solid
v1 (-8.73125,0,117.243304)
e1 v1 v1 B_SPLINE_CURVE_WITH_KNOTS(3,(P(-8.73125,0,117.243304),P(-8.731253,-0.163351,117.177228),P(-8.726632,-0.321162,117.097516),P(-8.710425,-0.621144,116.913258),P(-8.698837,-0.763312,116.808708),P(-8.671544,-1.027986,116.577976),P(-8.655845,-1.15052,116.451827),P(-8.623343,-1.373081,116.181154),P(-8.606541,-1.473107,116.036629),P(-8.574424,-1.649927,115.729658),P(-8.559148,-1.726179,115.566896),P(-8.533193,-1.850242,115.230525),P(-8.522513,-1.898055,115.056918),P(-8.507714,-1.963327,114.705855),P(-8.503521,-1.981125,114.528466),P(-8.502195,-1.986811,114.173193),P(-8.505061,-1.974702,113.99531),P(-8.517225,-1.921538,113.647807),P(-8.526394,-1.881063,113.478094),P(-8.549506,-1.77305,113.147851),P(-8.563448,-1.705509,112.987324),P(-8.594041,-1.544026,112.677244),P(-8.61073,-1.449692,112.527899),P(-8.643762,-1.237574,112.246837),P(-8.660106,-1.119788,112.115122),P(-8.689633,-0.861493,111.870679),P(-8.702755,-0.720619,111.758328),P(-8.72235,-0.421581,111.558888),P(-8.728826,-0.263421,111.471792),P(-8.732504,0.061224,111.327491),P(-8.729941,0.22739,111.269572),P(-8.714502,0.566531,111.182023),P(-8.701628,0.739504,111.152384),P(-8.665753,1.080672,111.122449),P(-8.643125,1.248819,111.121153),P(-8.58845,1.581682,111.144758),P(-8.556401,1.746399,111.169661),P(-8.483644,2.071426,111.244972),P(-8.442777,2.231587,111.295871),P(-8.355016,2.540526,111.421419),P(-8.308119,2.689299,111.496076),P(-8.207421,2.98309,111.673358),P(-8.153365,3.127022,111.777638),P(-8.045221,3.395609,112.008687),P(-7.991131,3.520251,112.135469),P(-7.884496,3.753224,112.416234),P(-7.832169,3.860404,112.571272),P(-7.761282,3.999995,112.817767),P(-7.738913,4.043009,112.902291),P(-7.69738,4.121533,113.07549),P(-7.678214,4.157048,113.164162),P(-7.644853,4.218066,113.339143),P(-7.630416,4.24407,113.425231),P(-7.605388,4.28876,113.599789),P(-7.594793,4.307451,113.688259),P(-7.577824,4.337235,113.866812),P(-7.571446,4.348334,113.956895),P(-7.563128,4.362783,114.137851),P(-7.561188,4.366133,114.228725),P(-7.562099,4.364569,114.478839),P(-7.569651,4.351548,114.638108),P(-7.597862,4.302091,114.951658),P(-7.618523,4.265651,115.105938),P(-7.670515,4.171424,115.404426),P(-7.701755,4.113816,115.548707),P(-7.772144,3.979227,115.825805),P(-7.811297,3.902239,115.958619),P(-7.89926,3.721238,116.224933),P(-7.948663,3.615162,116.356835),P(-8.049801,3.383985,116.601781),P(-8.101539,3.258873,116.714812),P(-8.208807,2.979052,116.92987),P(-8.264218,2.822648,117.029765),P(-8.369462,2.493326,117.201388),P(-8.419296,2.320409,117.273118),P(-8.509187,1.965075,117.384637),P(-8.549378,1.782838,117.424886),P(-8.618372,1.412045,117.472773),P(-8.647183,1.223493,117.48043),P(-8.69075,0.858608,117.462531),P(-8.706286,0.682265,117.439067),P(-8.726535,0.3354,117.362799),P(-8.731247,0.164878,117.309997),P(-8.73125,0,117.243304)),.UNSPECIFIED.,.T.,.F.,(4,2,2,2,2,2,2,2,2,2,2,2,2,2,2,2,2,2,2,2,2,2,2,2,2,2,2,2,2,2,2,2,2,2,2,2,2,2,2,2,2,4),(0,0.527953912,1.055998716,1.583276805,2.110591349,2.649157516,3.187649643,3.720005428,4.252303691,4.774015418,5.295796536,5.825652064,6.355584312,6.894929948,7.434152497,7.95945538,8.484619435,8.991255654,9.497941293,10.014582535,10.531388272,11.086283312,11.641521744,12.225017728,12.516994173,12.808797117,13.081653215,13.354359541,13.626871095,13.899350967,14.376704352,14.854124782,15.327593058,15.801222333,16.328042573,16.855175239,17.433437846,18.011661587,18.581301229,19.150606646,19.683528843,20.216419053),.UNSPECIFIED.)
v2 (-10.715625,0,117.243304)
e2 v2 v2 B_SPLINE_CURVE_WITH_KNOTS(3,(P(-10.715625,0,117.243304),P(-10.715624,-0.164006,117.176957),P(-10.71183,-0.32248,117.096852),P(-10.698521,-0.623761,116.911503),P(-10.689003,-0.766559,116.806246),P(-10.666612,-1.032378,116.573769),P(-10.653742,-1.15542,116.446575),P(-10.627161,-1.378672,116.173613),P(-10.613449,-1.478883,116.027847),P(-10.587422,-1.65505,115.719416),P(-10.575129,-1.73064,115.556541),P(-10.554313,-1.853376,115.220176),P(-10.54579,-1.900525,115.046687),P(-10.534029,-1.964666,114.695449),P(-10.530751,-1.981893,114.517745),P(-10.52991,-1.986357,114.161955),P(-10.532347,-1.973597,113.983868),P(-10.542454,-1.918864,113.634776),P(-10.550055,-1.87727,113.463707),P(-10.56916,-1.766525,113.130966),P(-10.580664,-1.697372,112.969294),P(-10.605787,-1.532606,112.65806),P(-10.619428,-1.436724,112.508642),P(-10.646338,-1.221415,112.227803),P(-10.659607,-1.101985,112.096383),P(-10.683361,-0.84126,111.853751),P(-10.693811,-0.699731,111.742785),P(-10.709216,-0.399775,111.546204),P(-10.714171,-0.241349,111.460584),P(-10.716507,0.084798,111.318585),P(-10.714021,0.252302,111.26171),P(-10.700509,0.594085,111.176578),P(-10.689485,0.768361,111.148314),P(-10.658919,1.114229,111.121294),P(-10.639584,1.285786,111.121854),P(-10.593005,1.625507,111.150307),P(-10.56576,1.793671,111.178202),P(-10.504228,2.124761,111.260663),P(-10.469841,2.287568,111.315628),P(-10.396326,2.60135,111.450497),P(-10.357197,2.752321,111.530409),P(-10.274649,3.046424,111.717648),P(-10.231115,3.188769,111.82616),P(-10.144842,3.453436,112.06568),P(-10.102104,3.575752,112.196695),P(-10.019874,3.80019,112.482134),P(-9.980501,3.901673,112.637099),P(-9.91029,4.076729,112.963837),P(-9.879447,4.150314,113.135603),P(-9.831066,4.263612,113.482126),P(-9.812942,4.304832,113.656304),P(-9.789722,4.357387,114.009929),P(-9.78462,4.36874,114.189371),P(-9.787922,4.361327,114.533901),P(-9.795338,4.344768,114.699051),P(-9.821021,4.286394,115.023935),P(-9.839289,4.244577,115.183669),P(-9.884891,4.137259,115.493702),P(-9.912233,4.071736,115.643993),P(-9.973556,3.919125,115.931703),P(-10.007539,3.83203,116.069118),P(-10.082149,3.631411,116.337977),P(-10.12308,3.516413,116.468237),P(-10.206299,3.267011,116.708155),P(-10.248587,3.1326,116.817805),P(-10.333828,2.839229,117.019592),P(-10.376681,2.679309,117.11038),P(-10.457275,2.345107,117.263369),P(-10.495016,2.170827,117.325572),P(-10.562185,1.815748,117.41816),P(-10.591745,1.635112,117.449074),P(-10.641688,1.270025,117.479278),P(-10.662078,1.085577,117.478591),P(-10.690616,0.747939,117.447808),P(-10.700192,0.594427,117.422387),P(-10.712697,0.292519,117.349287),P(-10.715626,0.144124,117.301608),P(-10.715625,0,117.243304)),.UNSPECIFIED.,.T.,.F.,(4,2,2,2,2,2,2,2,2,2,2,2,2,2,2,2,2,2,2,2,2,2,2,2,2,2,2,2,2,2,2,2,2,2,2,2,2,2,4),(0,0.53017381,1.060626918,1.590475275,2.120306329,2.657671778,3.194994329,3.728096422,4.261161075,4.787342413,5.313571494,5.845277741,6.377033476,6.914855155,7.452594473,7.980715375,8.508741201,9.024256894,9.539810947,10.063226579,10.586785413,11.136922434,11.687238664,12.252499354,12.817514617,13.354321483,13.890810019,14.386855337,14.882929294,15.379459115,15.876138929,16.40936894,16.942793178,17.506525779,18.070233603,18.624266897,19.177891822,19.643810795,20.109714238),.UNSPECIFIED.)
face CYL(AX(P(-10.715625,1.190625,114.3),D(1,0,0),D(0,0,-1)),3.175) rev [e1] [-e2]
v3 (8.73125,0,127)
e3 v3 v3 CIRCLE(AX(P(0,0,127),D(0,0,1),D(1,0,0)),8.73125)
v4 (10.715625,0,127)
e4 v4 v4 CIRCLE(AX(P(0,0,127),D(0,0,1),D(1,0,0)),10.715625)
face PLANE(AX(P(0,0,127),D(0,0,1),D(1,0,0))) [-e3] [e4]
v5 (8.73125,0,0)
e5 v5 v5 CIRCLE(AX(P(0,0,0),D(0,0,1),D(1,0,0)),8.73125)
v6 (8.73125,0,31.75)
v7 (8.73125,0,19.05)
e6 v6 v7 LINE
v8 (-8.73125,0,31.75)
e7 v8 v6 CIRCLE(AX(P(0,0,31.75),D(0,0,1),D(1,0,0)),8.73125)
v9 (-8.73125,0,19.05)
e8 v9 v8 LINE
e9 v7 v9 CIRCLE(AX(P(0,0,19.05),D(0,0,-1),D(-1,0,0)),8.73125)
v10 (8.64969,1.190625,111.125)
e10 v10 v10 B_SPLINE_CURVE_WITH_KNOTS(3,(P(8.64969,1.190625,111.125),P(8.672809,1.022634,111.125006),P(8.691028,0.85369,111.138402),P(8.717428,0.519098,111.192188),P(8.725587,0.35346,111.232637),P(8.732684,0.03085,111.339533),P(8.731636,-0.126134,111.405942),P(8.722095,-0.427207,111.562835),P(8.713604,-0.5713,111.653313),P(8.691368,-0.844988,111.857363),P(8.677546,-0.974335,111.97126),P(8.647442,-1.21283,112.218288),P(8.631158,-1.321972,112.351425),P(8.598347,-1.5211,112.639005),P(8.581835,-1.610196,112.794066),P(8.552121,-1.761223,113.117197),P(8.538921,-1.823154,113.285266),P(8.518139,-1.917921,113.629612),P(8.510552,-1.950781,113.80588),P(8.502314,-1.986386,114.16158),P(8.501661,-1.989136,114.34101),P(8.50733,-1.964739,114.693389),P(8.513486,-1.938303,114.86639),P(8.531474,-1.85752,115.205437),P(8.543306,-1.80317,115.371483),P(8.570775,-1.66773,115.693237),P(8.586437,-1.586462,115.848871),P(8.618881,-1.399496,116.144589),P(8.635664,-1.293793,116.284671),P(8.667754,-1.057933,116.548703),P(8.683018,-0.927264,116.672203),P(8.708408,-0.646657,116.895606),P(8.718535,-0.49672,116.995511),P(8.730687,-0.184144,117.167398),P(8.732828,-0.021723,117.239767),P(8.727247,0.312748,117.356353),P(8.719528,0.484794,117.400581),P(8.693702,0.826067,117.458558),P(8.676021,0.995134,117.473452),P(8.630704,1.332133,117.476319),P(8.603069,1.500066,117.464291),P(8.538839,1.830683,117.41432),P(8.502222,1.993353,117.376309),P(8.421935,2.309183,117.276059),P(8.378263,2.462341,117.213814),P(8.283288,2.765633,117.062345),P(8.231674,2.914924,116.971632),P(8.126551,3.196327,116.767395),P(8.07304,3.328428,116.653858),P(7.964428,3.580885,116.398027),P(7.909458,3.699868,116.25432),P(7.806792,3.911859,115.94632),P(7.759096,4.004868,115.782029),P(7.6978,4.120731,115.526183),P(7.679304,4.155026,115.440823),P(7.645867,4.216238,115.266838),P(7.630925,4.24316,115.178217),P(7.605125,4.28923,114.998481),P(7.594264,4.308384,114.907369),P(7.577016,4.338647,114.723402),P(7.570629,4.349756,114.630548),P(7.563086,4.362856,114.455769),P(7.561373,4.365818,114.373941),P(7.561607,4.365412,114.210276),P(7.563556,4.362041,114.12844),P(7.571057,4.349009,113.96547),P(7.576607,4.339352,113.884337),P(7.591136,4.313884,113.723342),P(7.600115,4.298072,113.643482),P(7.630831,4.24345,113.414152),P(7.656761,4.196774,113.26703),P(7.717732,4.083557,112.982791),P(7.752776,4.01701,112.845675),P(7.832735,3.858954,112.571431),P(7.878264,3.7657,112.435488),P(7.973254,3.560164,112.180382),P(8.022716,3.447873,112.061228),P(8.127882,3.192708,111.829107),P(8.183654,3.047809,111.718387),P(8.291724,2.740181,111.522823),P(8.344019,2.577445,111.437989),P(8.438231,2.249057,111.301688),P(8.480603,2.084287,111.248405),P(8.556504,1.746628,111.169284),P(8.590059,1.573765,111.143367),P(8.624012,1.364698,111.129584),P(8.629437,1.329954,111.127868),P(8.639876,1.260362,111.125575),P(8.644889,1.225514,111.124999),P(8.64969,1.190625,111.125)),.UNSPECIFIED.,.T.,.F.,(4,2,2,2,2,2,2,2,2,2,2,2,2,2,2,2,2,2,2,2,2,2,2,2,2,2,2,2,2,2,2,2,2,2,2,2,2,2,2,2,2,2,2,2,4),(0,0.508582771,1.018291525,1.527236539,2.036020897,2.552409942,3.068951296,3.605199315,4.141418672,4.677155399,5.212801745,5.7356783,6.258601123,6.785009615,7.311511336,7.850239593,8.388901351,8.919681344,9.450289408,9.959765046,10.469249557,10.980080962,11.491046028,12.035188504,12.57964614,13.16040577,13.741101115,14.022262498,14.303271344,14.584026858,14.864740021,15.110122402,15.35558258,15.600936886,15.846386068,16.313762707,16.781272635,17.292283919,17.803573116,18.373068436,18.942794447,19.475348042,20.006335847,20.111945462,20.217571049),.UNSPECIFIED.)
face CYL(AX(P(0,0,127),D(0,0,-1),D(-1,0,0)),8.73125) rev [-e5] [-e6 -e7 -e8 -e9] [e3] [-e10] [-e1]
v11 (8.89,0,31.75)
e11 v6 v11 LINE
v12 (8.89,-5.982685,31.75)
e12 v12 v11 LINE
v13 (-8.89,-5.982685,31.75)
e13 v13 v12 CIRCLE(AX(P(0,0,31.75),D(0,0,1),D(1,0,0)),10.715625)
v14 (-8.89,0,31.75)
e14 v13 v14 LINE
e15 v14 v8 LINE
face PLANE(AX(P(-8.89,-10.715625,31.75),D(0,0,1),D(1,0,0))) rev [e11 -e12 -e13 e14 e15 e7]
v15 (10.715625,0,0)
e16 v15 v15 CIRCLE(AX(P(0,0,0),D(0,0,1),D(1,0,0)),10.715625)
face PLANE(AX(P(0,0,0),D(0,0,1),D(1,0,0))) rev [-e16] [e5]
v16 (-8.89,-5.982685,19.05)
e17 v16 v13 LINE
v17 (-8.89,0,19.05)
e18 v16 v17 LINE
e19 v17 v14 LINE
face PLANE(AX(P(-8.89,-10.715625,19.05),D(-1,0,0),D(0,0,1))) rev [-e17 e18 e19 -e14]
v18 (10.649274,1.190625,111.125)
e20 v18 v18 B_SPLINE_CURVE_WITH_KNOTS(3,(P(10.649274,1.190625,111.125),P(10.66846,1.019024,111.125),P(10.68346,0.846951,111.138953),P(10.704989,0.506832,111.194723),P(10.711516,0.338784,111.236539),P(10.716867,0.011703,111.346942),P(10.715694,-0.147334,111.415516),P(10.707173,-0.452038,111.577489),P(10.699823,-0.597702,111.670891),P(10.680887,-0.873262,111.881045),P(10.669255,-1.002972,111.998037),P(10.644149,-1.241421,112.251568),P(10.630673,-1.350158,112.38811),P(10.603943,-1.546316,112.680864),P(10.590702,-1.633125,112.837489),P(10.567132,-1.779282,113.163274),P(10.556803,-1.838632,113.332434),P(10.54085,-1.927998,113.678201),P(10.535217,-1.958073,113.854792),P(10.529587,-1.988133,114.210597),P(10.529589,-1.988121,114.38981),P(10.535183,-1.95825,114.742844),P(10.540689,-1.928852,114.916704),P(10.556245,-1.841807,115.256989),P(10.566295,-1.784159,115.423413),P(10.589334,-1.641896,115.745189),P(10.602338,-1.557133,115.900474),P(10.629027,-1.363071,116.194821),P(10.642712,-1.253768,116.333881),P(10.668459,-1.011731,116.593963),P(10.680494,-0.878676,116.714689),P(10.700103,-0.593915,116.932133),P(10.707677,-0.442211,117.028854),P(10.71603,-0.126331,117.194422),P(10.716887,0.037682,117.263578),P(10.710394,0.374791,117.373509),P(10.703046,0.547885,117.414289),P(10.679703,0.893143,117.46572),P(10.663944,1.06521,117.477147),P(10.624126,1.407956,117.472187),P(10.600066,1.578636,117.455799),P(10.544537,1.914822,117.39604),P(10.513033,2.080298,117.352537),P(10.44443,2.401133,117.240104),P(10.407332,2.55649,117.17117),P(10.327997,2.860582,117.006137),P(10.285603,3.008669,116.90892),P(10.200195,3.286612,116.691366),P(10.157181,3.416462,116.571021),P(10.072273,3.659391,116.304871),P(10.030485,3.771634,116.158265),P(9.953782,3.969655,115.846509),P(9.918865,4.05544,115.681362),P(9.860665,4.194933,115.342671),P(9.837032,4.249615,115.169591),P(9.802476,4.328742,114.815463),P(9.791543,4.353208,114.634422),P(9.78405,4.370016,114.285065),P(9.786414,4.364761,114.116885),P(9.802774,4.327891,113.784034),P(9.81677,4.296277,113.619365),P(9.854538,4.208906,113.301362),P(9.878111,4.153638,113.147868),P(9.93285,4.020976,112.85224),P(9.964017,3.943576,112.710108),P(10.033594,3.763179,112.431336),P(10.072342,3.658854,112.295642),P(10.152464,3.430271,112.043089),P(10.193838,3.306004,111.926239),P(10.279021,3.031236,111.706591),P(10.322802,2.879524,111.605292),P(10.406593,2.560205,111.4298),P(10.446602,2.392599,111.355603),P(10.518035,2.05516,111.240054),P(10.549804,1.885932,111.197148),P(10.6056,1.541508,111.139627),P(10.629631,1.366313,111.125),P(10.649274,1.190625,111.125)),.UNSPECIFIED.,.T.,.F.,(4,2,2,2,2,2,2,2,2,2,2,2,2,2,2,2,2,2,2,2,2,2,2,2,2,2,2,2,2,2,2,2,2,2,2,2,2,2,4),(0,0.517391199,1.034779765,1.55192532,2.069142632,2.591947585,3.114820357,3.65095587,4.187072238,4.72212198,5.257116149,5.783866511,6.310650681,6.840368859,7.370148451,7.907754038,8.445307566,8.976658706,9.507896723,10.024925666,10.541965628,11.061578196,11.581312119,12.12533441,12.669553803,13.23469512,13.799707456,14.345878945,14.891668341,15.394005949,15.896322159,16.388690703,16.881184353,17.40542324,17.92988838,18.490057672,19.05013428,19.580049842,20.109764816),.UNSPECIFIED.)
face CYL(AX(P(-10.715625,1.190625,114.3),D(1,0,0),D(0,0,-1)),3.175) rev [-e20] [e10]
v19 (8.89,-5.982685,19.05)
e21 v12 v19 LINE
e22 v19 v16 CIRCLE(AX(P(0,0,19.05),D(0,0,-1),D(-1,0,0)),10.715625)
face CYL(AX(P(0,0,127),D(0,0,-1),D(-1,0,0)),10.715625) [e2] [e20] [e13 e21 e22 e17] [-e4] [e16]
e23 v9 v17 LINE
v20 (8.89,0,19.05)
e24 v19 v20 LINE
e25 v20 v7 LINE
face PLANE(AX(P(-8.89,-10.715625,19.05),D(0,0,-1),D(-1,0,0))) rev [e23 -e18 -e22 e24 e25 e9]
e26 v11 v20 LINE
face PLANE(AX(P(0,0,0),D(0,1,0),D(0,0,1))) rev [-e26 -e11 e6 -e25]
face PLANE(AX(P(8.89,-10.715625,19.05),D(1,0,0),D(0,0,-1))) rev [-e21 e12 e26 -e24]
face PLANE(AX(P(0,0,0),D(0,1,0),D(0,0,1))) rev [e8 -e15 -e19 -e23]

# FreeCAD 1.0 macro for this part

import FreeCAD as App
import Part
import Sketcher

V = App.Vector
Q = App.Units.Quantity


def add_polygon(sketch, points):
    """Adds a closed chain of lines whose ends are joined by coincident constraints."""
    first, n = sketch.GeometryCount, len(points)
    for a, b in zip(points, points[1:] + points[:1]):
        sketch.addGeometry(Part.LineSegment(App.Vector(*a, 0), App.Vector(*b, 0)), False)
    for i in range(n):
        sketch.addConstraint(Sketcher.Constraint("Coincident", first + i, 2, first + (i + 1) % n, 1))

doc = App.newDocument("Part")
body = doc.addObject("PartDesign::Body", "Body")

# Sketch on XY plane
sketch1 = body.newObject("Sketcher::SketchObject", "Sketch")
sketch1.AttachmentSupport = (doc.getObject("XY_Plane"), [""])
sketch1.MapMode = "FlatFace"
sketch1.addGeometry([
    Part.Circle(V(0, 0, 0), V(0, 0, 1), 11),
    Part.Circle(V(0, 0, 0), V(0, 0, 1), 9),
], False)
sketch1.addConstraint([
    Sketcher.Constraint("Coincident", 0, 3, -1, 1),
    Sketcher.Constraint("Coincident", 1, 3, -1, 1),
    Sketcher.Constraint("Diameter", 0, Q("0.84375 in")),
    Sketcher.Constraint("Diameter", 1, Q("0.6875 in")),
])
pad1 = body.newObject("PartDesign::Pad", "Pad")
pad1.Profile = sketch1
pad1.Length = Q("5 in")

# Sketch on XZ plane
sketch2 = body.newObject("Sketcher::SketchObject", "Sketch001")
sketch2.AttachmentSupport = (doc.getObject("XZ_Plane"), [""])
sketch2.MapMode = "FlatFace"
add_polygon(sketch2, [(-9, 19), (-9, 32), (9, 32), (9, 19)])  # lines 0-3
sketch2.addConstraint([
    Sketcher.Constraint("Vertical", 0),
    Sketcher.Constraint("Horizontal", 1),
    Sketcher.Constraint("Vertical", 2),
    Sketcher.Constraint("Horizontal", 3),
    Sketcher.Constraint("DistanceX", 1, 1, 1, 2, Q("0.7 in")),
    Sketcher.Constraint("DistanceY", 0, 1, 0, 2, Q("0.5 in")),
    Sketcher.Constraint("DistanceX", 0, 2, -1, 1, Q("0.35 in")),
    Sketcher.Constraint("DistanceY", -1, 1, 0, 2, Q("1.25 in")),
])
pocket1 = body.newObject("PartDesign::Pocket", "Pocket")
pocket1.Profile = sketch2
pocket1.Type = "ThroughAll"
pocket1.Reversed = True

# Sketch on YZ plane
sketch3 = body.newObject("Sketcher::SketchObject", "Sketch002")
sketch3.AttachmentSupport = (doc.getObject("YZ_Plane"), [""])
sketch3.MapMode = "FlatFace"
sketch3.addGeometry(Part.Circle(V(1.2, 114.3, 0), V(0, 0, 1), 3.2), False)
sketch3.addConstraint([
    Sketcher.Constraint("Diameter", 0, Q("0.25 in")),
    Sketcher.Constraint("DistanceY", -1, 1, 0, 3, Q("4.5 in")),
    Sketcher.Constraint("DistanceX", -1, 1, 0, 3, Q("0.046875 in")),
])
pocket2 = body.newObject("PartDesign::Pocket", "Pocket001")
pocket2.Profile = sketch3
pocket2.Type = "ThroughAll"
pocket2.Midplane = True

doc.recompute()
